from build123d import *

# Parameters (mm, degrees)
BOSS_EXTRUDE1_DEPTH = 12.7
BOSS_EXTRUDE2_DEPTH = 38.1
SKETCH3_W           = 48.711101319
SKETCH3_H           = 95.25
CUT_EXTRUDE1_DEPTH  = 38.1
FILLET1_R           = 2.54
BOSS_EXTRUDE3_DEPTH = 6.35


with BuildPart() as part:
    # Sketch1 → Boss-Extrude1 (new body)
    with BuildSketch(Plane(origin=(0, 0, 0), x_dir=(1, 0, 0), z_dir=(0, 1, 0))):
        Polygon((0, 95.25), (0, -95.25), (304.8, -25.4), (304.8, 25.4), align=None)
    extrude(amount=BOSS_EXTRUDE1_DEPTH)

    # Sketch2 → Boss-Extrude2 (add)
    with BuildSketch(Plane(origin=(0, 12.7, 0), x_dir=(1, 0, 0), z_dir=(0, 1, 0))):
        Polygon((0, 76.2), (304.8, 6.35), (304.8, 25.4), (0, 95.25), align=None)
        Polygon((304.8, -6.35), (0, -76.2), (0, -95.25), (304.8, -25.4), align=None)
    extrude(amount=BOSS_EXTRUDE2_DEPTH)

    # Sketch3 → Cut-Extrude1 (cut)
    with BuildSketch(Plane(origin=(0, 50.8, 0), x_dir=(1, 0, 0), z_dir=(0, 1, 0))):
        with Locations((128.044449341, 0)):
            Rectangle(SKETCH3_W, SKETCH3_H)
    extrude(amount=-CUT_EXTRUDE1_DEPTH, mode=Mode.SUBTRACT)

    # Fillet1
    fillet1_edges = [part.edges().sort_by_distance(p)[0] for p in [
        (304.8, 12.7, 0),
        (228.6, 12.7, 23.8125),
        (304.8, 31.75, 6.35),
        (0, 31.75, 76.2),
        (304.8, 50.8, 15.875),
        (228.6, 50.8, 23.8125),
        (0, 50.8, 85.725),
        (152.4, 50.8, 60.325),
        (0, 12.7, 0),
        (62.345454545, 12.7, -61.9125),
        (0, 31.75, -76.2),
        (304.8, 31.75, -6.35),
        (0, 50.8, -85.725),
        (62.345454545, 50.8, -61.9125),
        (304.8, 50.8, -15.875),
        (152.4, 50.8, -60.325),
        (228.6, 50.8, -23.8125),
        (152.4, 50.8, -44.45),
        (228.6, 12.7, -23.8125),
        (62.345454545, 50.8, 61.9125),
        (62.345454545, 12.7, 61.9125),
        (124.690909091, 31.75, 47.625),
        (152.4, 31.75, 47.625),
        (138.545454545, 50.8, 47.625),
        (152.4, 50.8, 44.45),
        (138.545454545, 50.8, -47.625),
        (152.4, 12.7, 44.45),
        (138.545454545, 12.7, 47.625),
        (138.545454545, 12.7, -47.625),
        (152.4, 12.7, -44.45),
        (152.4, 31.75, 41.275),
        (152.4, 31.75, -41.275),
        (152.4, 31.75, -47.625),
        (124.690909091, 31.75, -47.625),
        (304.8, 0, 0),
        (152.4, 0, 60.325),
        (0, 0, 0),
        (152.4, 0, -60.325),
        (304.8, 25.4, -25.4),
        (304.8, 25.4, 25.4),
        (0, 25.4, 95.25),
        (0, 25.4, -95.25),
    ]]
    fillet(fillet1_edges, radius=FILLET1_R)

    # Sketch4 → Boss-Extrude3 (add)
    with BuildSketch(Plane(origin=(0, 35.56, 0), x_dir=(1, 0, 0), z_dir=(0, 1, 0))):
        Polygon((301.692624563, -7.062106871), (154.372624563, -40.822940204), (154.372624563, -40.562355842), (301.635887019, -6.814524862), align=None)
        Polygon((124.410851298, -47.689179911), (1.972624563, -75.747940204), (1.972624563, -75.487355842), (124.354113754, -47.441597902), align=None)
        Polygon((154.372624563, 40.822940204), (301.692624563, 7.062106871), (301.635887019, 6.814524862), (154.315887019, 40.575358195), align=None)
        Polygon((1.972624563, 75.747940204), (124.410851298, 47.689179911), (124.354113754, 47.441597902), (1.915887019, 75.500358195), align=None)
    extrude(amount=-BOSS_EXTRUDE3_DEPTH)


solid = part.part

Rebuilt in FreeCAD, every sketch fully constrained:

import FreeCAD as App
import Part
import Sketcher

V = App.Vector
Q = App.Units.Quantity

doc = App.newDocument("Part")
body = doc.addObject("PartDesign::Body", "Body")

# Sketch on XZ plane
sketch1 = doc.addObject("Sketcher::SketchObject", "Sketch")
body.addObject(sketch1)
sketch1.AttachmentSupport = (doc.XZ_Plane, [""])
sketch1.MapMode = "FlatFace"
sketch1.addGeometry([
    Part.LineSegment(V(0, -95.25, 0), V(0, 95.25, 0)),
    Part.LineSegment(V(0, 95.25, 0), V(304.8, 25.4, 0)),
    Part.LineSegment(V(304.8, 25.4, 0), V(304.8, -25.4, 0)),
    Part.LineSegment(V(304.8, -25.4, 0), V(0, -95.25, 0)),
], False)
sketch1.addConstraint([
    Sketcher.Constraint("Coincident", 0, 2, 1, 1),
    Sketcher.Constraint("Coincident", 1, 2, 2, 1),
    Sketcher.Constraint("Coincident", 2, 2, 3, 1),
    Sketcher.Constraint("Coincident", 3, 2, 0, 1),
    Sketcher.Constraint("Vertical", 0),
    Sketcher.Constraint("Vertical", 2),
    Sketcher.Constraint("Symmetric", 0, 2, 3, 2, -1, 1),
    Sketcher.Constraint("Equal", 1, 3),
    Sketcher.Constraint("DistanceY", 2, 2, 2, 1, Q("2 in")),
    Sketcher.Constraint("DistanceY", 0, 1, 0, 2, Q("7.5 in")),
    Sketcher.Constraint("DistanceX", -1, 1, 1, 2, Q("12 in")),
])
pad1 = doc.addObject("PartDesign::Pad", "Pad")
body.addObject(pad1)
pad1.Profile = sketch1
pad1.Length = Q("0.5 in")
pad1.Reversed = True

# Sketch on XZ plane
sketch2 = doc.addObject("Sketcher::SketchObject", "Sketch001")
body.addObject(sketch2)
sketch2.AttachmentSupport = (doc.XZ_Plane, [""])
sketch2.MapMode = "FlatFace"
sketch2.AttachmentOffset = App.Placement(V(0, 0, -0.5 * 25.4), App.Rotation())
sketch2.addGeometry([
    Part.LineSegment(V(0, -76.2, 0), V(304.8, -6.35, 0)),  # 0
    Part.LineSegment(V(304.8, -6.35, 0), V(304.8, -25.4, 0)),  # 1
    Part.LineSegment(V(304.8, -25.4, 0), V(0, -95.25, 0)),  # 2
    Part.LineSegment(V(0, -95.25, 0), V(0, -76.2, 0)),  # 3
    Part.LineSegment(V(304.8, 6.35, 0), V(0, 76.2, 0)),  # 4
    Part.LineSegment(V(0, 76.2, 0), V(0, 95.25, 0)),  # 5
    Part.LineSegment(V(0, 95.25, 0), V(304.8, 25.4, 0)),  # 6
    Part.LineSegment(V(304.8, 25.4, 0), V(304.8, 6.35, 0)),  # 7
], False)
sketch2.addConstraint([
    Sketcher.Constraint("Coincident", 0, 2, 1, 1),
    Sketcher.Constraint("Coincident", 1, 2, 2, 1),
    Sketcher.Constraint("Coincident", 2, 2, 3, 1),
    Sketcher.Constraint("Coincident", 3, 2, 0, 1),
    Sketcher.Constraint("Coincident", 4, 2, 5, 1),
    Sketcher.Constraint("Coincident", 5, 2, 6, 1),
    Sketcher.Constraint("Coincident", 6, 2, 7, 1),
    Sketcher.Constraint("Coincident", 7, 2, 4, 1),
    Sketcher.Constraint("Vertical", 1),
    Sketcher.Constraint("Vertical", 3),
    Sketcher.Constraint("Vertical", 5),
    Sketcher.Constraint("Vertical", 7),
    Sketcher.Constraint("Symmetric", 3, 2, 4, 2, -1, 1),
    Sketcher.Constraint("Symmetric", 2, 2, 5, 2, -1),
    Sketcher.Constraint("Symmetric", 1, 2, 6, 2, -1),
    Sketcher.Constraint("Parallel", 0, 2),
    Sketcher.Constraint("Parallel", 4, 6),
    Sketcher.Constraint("DistanceX", -1, 1, 0, 2, Q("12 in")),
    Sketcher.Constraint("DistanceY", 1, 2, -1, 1, Q("1 in")),
    Sketcher.Constraint("DistanceY", 3, 2, -1, 1, Q("3 in")),
    Sketcher.Constraint("DistanceY", 1, 2, 1, 1, Q("0.75 in")),
])
pad2 = doc.addObject("PartDesign::Pad", "Pad001")
body.addObject(pad2)
pad2.Profile = sketch2
pad2.Length = Q("1.5 in")
pad2.Reversed = True

# Sketch on XZ plane
sketch3 = doc.addObject("Sketcher::SketchObject", "Sketch002")
body.addObject(sketch3)
sketch3.AttachmentSupport = (doc.XZ_Plane, [""])
sketch3.MapMode = "FlatFace"
sketch3.AttachmentOffset = App.Placement(V(0, 0, -2 * 25.4), App.Rotation())
sketch3.addGeometry([
    Part.LineSegment(V(103.688899, -47.625, 0), V(103.688899, 47.625, 0)),
    Part.LineSegment(V(103.688899, 47.625, 0), V(152.4, 47.625, 0)),
    Part.LineSegment(V(152.4, 47.625, 0), V(152.4, -47.625, 0)),
    Part.LineSegment(V(152.4, -47.625, 0), V(103.688899, -47.625, 0)),
], False)
sketch3.addConstraint([
    Sketcher.Constraint("Coincident", 0, 2, 1, 1),
    Sketcher.Constraint("Coincident", 1, 2, 2, 1),
    Sketcher.Constraint("Coincident", 2, 2, 3, 1),
    Sketcher.Constraint("Coincident", 3, 2, 0, 1),
    Sketcher.Constraint("Vertical", 0),
    Sketcher.Constraint("Horizontal", 1),
    Sketcher.Constraint("Vertical", 2),
    Sketcher.Constraint("Horizontal", 3),
    Sketcher.Constraint("DistanceX", -1, 1, 1, 2, Q("6 in")),
    Sketcher.Constraint("DistanceY", 0, 1, 0, 2, Q("3.75 in")),
    Sketcher.Constraint("DistanceY", -1, 1, 0, 2, Q("1.875 in")),
    Sketcher.Constraint("DistanceX", 1, 1, 1, 2, 48.711101),
])
pocket1 = doc.addObject("PartDesign::Pocket", "Pocket")
body.addObject(pocket1)
pocket1.Profile = sketch3
pocket1.Length = Q("1.5 in")
pocket1.Reversed = True
doc.recompute()

fillet = doc.addObject("PartDesign::Fillet", "Fillet")
body.addObject(fillet)
fillet.Base = (pocket1, ["Edge1"])
fillet.UseAllEdges = True
fillet.Radius = Q("0.1 in")

# Sketch on XZ plane
sketch4 = doc.addObject("Sketcher::SketchObject", "Sketch003")
body.addObject(sketch4)
sketch4.AttachmentSupport = (doc.XZ_Plane, [""])
sketch4.MapMode = "FlatFace"
sketch4.AttachmentOffset = App.Placement(V(0, 0, -1.4 * 25.4), App.Rotation())
sketch4.addGeometry([
    Part.LineSegment(V(154.372625, 40.82294, 0), V(301.692625, 7.062107, 0)),  # 0
    Part.LineSegment(V(301.692625, 7.062107, 0), V(301.635887, 6.814525, 0)),  # 1
    Part.LineSegment(V(301.635887, 6.814525, 0), V(154.372625, 40.562356, 0)),  # 2
    Part.LineSegment(V(154.372625, 40.562356, 0), V(154.372625, 40.82294, 0)),  # 3
    Part.LineSegment(V(1.972625, 75.74794, 0), V(124.410851, 47.68918, 0)),  # 4
    Part.LineSegment(V(124.410851, 47.68918, 0), V(124.354114, 47.441598, 0)),  # 5
    Part.LineSegment(V(124.354114, 47.441598, 0), V(1.972625, 75.487356, 0)),  # 6
    Part.LineSegment(V(1.972625, 75.487356, 0), V(1.972625, 75.74794, 0)),  # 7
    Part.LineSegment(V(301.692625, -7.062107, 0), V(154.372625, -40.82294, 0)),  # 8
    Part.LineSegment(V(154.372625, -40.82294, 0), V(154.315887, -40.575358, 0)),  # 9
    Part.LineSegment(V(154.315887, -40.575358, 0), V(301.635887, -6.814525, 0)),  # 10
    Part.LineSegment(V(301.635887, -6.814525, 0), V(301.692625, -7.062107, 0)),  # 11
    Part.LineSegment(V(124.410851, -47.68918, 0), V(1.972625, -75.74794, 0)),  # 12
    Part.LineSegment(V(1.972625, -75.74794, 0), V(1.915887, -75.500358, 0)),  # 13
    Part.LineSegment(V(1.915887, -75.500358, 0), V(124.354114, -47.441598, 0)),  # 14
    Part.LineSegment(V(124.354114, -47.441598, 0), V(124.410851, -47.68918, 0)),  # 15
], False)
sketch4.addConstraint([
    Sketcher.Constraint("Coincident", 0, 2, 1, 1),
    Sketcher.Constraint("Coincident", 1, 2, 2, 1),
    Sketcher.Constraint("Coincident", 2, 2, 3, 1),
    Sketcher.Constraint("Coincident", 3, 2, 0, 1),
    Sketcher.Constraint("Coincident", 4, 2, 5, 1),
    Sketcher.Constraint("Coincident", 5, 2, 6, 1),
    Sketcher.Constraint("Coincident", 6, 2, 7, 1),
    Sketcher.Constraint("Coincident", 7, 2, 4, 1),
    Sketcher.Constraint("Coincident", 8, 2, 9, 1),
    Sketcher.Constraint("Coincident", 9, 2, 10, 1),
    Sketcher.Constraint("Coincident", 10, 2, 11, 1),
    Sketcher.Constraint("Coincident", 11, 2, 8, 1),
    Sketcher.Constraint("Coincident", 12, 2, 13, 1),
    Sketcher.Constraint("Coincident", 13, 2, 14, 1),
    Sketcher.Constraint("Coincident", 14, 2, 15, 1),
    Sketcher.Constraint("Coincident", 15, 2, 12, 1),
    Sketcher.Constraint("Vertical", 3),
    Sketcher.Constraint("Vertical", 7),
    Sketcher.Constraint("Symmetric", 3, 2, 8, 2, -1),
    Sketcher.Constraint("Symmetric", 1, 2, 10, 2, -1),
    Sketcher.Constraint("Symmetric", 0, 2, 11, 2, -1),
    Sketcher.Constraint("Symmetric", 7, 2, 12, 2, -1),
    Sketcher.Constraint("Symmetric", 5, 2, 14, 2, -1),
    Sketcher.Constraint("Symmetric", 4, 2, 15, 2, -1),
    Sketcher.Constraint("Perpendicular", 0, 1),
    Sketcher.Constraint("Parallel", 0, 2),
    Sketcher.Constraint("Parallel", 2, 4),
    Sketcher.Constraint("Perpendicular", 4, 5),
    Sketcher.Constraint("Parallel", 4, 6),
    Sketcher.Constraint("Perpendicular", 8, 9),
    Sketcher.Constraint("Parallel", 8, 10),
    Sketcher.Constraint("Perpendicular", 12, 13),
    Sketcher.Constraint("Parallel", 12, 14),
    Sketcher.Constraint("Equal", 3, 7),
    Sketcher.Constraint("DistanceX", 6, 2, 3, 2, Q("6 in")),
    Sketcher.Constraint("DistanceX", 2, 2, 0, 2, Q("5.8 in")),
    Sketcher.Constraint("Distance", 1, Q("0.01 in")),
    Sketcher.Constraint("DistanceY", 2, 2, 6, 2, Q("1.375 in")),
    Sketcher.Constraint("DistanceY", 9, 2, 3, 2, 81.398298),
    Sketcher.Constraint("Distance", 0, 151.13893),
    Sketcher.Constraint("DistanceX", -1, 1, 4, 2, 124.410851),
    Sketcher.Constraint("DistanceY", -1, 1, 4, 2, 47.68918),
])
pad3 = doc.addObject("PartDesign::Pad", "Pad002")
body.addObject(pad3)
pad3.Profile = sketch4
pad3.Length = Q("0.25 in")

doc.recompute()
